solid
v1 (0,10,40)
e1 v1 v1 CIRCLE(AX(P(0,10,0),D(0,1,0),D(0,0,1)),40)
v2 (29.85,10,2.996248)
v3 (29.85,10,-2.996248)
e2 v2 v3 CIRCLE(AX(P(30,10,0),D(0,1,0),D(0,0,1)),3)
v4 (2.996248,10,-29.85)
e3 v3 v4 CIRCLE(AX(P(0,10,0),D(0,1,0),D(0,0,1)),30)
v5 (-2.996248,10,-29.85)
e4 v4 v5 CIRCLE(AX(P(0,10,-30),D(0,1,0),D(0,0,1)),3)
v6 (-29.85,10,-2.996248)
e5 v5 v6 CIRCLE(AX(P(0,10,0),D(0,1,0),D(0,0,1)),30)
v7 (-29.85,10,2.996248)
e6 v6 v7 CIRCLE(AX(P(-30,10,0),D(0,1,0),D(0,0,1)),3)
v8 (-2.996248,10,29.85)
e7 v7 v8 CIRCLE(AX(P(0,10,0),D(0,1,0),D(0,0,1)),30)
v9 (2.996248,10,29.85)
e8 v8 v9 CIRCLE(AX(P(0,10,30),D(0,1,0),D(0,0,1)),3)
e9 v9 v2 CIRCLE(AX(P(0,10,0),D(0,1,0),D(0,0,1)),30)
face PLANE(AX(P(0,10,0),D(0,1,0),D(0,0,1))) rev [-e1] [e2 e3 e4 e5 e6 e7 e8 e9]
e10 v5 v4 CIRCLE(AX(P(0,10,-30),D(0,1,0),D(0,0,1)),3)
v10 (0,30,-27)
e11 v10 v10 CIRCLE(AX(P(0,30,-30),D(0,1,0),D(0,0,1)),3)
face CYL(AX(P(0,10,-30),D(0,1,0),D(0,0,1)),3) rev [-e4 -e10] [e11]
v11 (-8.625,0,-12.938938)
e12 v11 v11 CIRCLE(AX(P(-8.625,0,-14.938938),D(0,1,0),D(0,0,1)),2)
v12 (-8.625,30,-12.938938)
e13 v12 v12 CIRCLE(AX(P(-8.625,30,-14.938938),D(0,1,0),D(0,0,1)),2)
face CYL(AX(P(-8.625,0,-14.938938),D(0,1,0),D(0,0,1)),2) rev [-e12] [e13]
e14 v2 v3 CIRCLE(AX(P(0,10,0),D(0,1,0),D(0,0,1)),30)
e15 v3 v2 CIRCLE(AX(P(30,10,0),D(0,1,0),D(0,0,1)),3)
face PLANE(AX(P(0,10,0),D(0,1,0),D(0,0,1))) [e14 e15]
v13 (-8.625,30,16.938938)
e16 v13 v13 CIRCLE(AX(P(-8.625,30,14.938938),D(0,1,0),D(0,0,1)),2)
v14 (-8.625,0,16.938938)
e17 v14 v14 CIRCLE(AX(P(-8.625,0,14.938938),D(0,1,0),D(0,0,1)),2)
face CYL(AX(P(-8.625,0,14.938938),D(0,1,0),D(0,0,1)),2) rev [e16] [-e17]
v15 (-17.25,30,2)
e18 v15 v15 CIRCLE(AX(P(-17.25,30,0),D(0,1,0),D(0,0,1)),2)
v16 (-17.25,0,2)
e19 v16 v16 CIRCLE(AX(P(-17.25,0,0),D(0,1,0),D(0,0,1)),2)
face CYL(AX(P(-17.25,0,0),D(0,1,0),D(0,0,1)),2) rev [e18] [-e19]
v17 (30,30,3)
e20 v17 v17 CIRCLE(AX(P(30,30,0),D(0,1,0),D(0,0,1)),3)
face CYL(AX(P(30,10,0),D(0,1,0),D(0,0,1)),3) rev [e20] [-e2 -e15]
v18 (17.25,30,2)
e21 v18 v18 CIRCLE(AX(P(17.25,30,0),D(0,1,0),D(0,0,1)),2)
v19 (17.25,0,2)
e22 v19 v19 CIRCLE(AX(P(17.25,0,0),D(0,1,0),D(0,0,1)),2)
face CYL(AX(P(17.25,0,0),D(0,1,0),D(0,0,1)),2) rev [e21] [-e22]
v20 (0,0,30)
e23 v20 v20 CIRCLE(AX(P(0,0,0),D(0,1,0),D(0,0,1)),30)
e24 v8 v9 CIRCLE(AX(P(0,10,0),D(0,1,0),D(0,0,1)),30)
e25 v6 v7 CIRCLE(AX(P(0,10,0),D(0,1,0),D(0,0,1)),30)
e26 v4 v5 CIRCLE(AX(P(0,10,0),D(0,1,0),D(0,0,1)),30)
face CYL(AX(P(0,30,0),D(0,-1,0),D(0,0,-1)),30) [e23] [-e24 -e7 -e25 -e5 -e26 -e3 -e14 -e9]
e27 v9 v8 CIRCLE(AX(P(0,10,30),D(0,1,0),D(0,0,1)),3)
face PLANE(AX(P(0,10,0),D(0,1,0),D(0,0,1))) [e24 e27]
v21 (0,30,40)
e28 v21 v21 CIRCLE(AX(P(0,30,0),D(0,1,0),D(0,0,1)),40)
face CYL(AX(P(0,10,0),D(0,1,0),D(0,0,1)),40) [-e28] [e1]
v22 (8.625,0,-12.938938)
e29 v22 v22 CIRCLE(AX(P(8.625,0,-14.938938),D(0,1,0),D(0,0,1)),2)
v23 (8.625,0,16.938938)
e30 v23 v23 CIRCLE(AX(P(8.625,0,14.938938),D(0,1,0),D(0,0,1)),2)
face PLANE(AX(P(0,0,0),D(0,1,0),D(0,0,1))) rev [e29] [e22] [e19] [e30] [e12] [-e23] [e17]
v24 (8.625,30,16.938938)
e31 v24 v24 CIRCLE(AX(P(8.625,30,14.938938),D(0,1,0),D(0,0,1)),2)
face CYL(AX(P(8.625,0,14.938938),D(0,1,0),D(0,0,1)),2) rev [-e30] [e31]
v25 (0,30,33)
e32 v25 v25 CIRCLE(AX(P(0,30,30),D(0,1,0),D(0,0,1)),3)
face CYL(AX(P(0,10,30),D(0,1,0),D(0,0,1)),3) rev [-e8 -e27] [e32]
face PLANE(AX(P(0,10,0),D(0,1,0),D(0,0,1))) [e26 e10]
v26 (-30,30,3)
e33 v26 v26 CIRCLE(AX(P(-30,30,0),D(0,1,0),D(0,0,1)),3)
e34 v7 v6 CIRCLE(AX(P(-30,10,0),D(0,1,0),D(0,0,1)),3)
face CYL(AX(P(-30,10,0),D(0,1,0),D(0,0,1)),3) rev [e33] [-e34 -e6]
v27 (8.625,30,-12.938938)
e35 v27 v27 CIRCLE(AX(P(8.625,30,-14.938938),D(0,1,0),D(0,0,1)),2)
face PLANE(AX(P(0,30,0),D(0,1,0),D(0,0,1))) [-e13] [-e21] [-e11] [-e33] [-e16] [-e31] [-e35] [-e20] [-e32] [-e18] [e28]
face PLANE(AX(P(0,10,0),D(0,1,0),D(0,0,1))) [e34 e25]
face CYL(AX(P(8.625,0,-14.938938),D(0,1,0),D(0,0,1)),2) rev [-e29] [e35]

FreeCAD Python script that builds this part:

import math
import FreeCAD as App
import Part
import Sketcher
from FreeCAD import Vector
Q = App.Units.Quantity

doc = App.newDocument("Part")
body = doc.addObject("PartDesign::Body", "Body")

sketch1 = body.newObject("Sketcher::SketchObject", "Sketch")
sketch1.AttachmentSupport = (doc.getObject("XZ_Plane"), [""])
sketch1.MapMode = "FlatFace"
sketch1.addGeometry(Part.Circle(Vector(0, 0, 0), Vector(0, 0, 1), 30), False)
sketch1.addGeometry(Part.Circle(Vector(-8.6, -14.9, 0), Vector(0, 0, 1), 3), False)
sketch1.addGeometry(Part.Circle(Vector(-17.2, 0, 0), Vector(0, 0, 1), 3), False)
sketch1.addGeometry(Part.Circle(Vector(-8.6, 14.9, 0), Vector(0, 0, 1), 3), False)
sketch1.addGeometry(Part.Circle(Vector(8.6, -14.9, 0), Vector(0, 0, 1), 3), False)
sketch1.addGeometry(Part.Circle(Vector(17.2, 0, 0), Vector(0, 0, 1), 3), False)
sketch1.addGeometry(Part.Circle(Vector(8.6, 14.9, 0), Vector(0, 0, 1), 3), False)
sketch1.addConstraint(Sketcher.Constraint("Coincident", 0, 3, -1, 1))
sketch1.addConstraint(Sketcher.Constraint("Equal", 1, 2))
sketch1.addConstraint(Sketcher.Constraint("Equal", 2, 3))
sketch1.addConstraint(Sketcher.Constraint("Equal", 3, 4))
sketch1.addConstraint(Sketcher.Constraint("Equal", 4, 5))
sketch1.addConstraint(Sketcher.Constraint("Equal", 5, 6))
sketch1.addConstraint(Sketcher.Constraint("Symmetric", 3, 3, 4, 3, -1, 1))
sketch1.addConstraint(Sketcher.Constraint("Symmetric", 2, 3, 5, 3, -1, 1))
sketch1.addConstraint(Sketcher.Constraint("Symmetric", 1, 3, 6, 3, -1, 1))
sketch1.addConstraint(Sketcher.Constraint("Symmetric", 1, 3, 4, 3, -2))
sketch1.addConstraint(Sketcher.Constraint("PointOnObject", 2, 3, -1))
sketch1.addConstraint(Sketcher.Constraint("Diameter", 0, Q("60 mm")))
sketch1.addConstraint(Sketcher.Constraint("Diameter", 1, Q("6 mm")))
sketch1.addConstraint(Sketcher.Constraint("DistanceX", 2, 3, 5, 3, Q("34.5 mm")))
sketch1.addConstraint(Sketcher.Constraint("DistanceX", 1, 3, 4, 3, Q("17.25 mm")))
sketch1.addConstraint(Sketcher.Constraint("DistanceY", 1, 3, -1, 1, Q("14.938938 mm")))
pad1 = body.newObject("PartDesign::Pad", "Pad")
pad1.Profile = sketch1
pad1.Length = 30
pad1.Reversed = True

sketch2 = body.newObject("Sketcher::SketchObject", "Sketch001")
sketch2.AttachmentSupport = (doc.getObject("XZ_Plane"), [""])
sketch2.MapMode = "FlatFace"
sketch2.AttachmentOffset = App.Placement(Vector(0, 0, -10), App.Rotation())
sketch2.addGeometry(Part.Circle(Vector(0, 0, 0), Vector(0, 0, 1), 40), False)
sketch2.addGeometry(Part.ArcOfCircle(Part.Circle(Vector(0, -30, 0), Vector(0, 0, 1), 3), math.radians(0), math.radians(2.87)), False)
sketch2.addGeometry(Part.ArcOfCircle(Part.Circle(Vector(0, 0, 0), Vector(0, 0, 1), 30), math.radians(-84), math.radians(-6)), False)
sketch2.addGeometry(Part.ArcOfCircle(Part.Circle(Vector(30, 0, 0), Vector(0, 0, 1), 3), math.radians(-93), math.radians(0)), False)
sketch2.addGeometry(Part.ArcOfCircle(Part.Circle(Vector(30, 0, 0), Vector(0, 0, 1), 3), math.radians(0), math.radians(93)), False)
sketch2.addGeometry(Part.ArcOfCircle(Part.Circle(Vector(0, 0, 0), Vector(0, 0, 1), 30), math.radians(6), math.radians(84)), False)
sketch2.addGeometry(Part.ArcOfCircle(Part.Circle(Vector(0, 30, 0), Vector(0, 0, 1), 3), math.radians(-2.87), math.radians(0)), False)
sketch2.addGeometry(Part.ArcOfCircle(Part.Circle(Vector(0, 30, 0), Vector(0, 0, 1), 3), math.radians(0), math.radians(183)), False)
sketch2.addGeometry(Part.ArcOfCircle(Part.Circle(Vector(0, 0, 0), Vector(0, 0, 1), 30), math.radians(96), math.radians(174)), False)
sketch2.addGeometry(Part.ArcOfCircle(Part.Circle(Vector(-30, 0, 0), Vector(0, 0, 1), 3), math.radians(87), math.radians(273)), False)
sketch2.addGeometry(Part.ArcOfCircle(Part.Circle(Vector(0, 0, 0), Vector(0, 0, 1), 30), math.radians(-174), math.radians(-96)), False)
sketch2.addGeometry(Part.ArcOfCircle(Part.Circle(Vector(0, -30, 0), Vector(0, 0, 1), 3), math.radians(177), math.radians(360)), False)
sketch2.addConstraint(Sketcher.Constraint("Coincident", 1, 2, 2, 1))
sketch2.addConstraint(Sketcher.Constraint("Coincident", 2, 2, 3, 1))
sketch2.addConstraint(Sketcher.Constraint("Tangent", 3, 2, 4, 1))
sketch2.addConstraint(Sketcher.Constraint("Coincident", 4, 2, 5, 1))
sketch2.addConstraint(Sketcher.Constraint("Coincident", 5, 2, 6, 1))
sketch2.addConstraint(Sketcher.Constraint("Tangent", 6, 2, 7, 1))
sketch2.addConstraint(Sketcher.Constraint("Coincident", 7, 2, 8, 1))
sketch2.addConstraint(Sketcher.Constraint("Coincident", 8, 2, 9, 1))
sketch2.addConstraint(Sketcher.Constraint("Coincident", 9, 2, 10, 1))
sketch2.addConstraint(Sketcher.Constraint("Coincident", 10, 2, 11, 1))
sketch2.addConstraint(Sketcher.Constraint("Tangent", 11, 2, 1, 1))
sketch2.addConstraint(Sketcher.Constraint("Coincident", 0, 3, -1, 1))
sketch2.addConstraint(Sketcher.Constraint("Coincident", 2, 3, -1, 1))
sketch2.addConstraint(Sketcher.Constraint("Coincident", 5, 3, -1, 1))
sketch2.addConstraint(Sketcher.Constraint("Coincident", 8, 3, -1, 1))
sketch2.addConstraint(Sketcher.Constraint("Coincident", 10, 3, -1, 1))
sketch2.addConstraint(Sketcher.Constraint("Equal", 1, 3))
sketch2.addConstraint(Sketcher.Constraint("Equal", 3, 4))
sketch2.addConstraint(Sketcher.Constraint("Equal", 2, 5))
sketch2.addConstraint(Sketcher.Constraint("Equal", 4, 6))
sketch2.addConstraint(Sketcher.Constraint("Equal", 6, 7))
sketch2.addConstraint(Sketcher.Constraint("Equal", 5, 8))
sketch2.addConstraint(Sketcher.Constraint("Equal", 7, 9))
sketch2.addConstraint(Sketcher.Constraint("Equal", 8, 10))
sketch2.addConstraint(Sketcher.Constraint("Equal", 9, 11))
sketch2.addConstraint(Sketcher.Constraint("Symmetric", 1, 3, 6, 3, -1, 1))
sketch2.addConstraint(Sketcher.Constraint("Symmetric", 3, 3, 9, 3, -1, 1))
sketch2.addConstraint(Sketcher.Constraint("Symmetric", 6, 2, 11, 2, -1))
sketch2.addConstraint(Sketcher.Constraint("PointOnObject", 3, 3, -1))
sketch2.addConstraint(Sketcher.Constraint("PointOnObject", 3, 2, -1))
sketch2.addConstraint(Sketcher.Constraint("Horizontal", 7, 3, 6, 2))
sketch2.addConstraint(Sketcher.Constraint("Diameter", 0, Q("80 mm")))
sketch2.addConstraint(Sketcher.Constraint("Radius", 1, Q("2.999998 mm")))
sketch2.addConstraint(Sketcher.Constraint("Radius", 2, Q("30 mm")))
sketch2.addConstraint(Sketcher.Constraint("DistanceY", 1, 3, -1, 1, Q("30 mm")))
sketch2.addConstraint(Sketcher.Constraint("DistanceX", -1, 1, 3, 3, Q("30 mm")))
pad2 = body.newObject("PartDesign::Pad", "Pad001")
pad2.Profile = sketch2
pad2.Length = 20
pad2.Reversed = True

sketch3 = body.newObject("Sketcher::SketchObject", "Sketch002")
sketch3.AttachmentSupport = (doc.getObject("XZ_Plane"), [""])
sketch3.MapMode = "FlatFace"
sketch3.AttachmentOffset = App.Placement(Vector(0, 0, -10), App.Rotation())
sketch3.addGeometry(Part.ArcOfCircle(Part.Circle(Vector(0, 0, 0), Vector(0, 0, 1), 30), math.radians(0), math.radians(5.73)), False)
sketch3.addGeometry(Part.ArcOfCircle(Part.Circle(Vector(0, 0, 0), Vector(0, 0, 1), 30), math.radians(-5.73), math.radians(0)), False)
sketch3.addGeometry(Part.ArcOfCircle(Part.Circle(Vector(30, 0, 0), Vector(0, 0, 1), 3), math.radians(93), math.radians(267)), False)
sketch3.addGeometry(Part.ArcOfCircle(Part.Circle(Vector(0, 0, 0), Vector(0, 0, 1), 30), math.radians(-5.73), math.radians(0)), False)
sketch3.addGeometry(Part.ArcOfCircle(Part.Circle(Vector(0, 0, 0), Vector(0, 0, 1), 30), math.radians(0), math.radians(5.73)), False)
sketch3.addGeometry(Part.ArcOfCircle(Part.Circle(Vector(30, 0, 0), Vector(0, 0, 1), 3), math.radians(0), math.radians(93)), False)
sketch3.addGeometry(Part.ArcOfCircle(Part.Circle(Vector(30, 0, 0), Vector(0, 0, 1), 3), math.radians(-93), math.radians(0)), False)
sketch3.addGeometry(Part.ArcOfCircle(Part.Circle(Vector(0, -30, 0), Vector(0, 0, 1), 3), math.radians(3), math.radians(177)), False)
sketch3.addGeometry(Part.ArcOfCircle(Part.Circle(Vector(0, 0, 0), Vector(0, 0, 1), 30), math.radians(-95.73), math.radians(-84.27)), False)
sketch3.addGeometry(Part.ArcOfCircle(Part.Circle(Vector(0, 0, 0), Vector(0, 0, 1), 30), math.radians(-95.73), math.radians(-84.27)), False)
sketch3.addGeometry(Part.ArcOfCircle(Part.Circle(Vector(0, -30, 0), Vector(0, 0, 1), 3), math.radians(0), math.radians(2.87)), False)
sketch3.addGeometry(Part.ArcOfCircle(Part.Circle(Vector(0, -30, 0), Vector(0, 0, 1), 3), math.radians(177), math.radians(360)), False)
sketch3.addGeometry(Part.ArcOfCircle(Part.Circle(Vector(0, 30, 0), Vector(0, 0, 1), 3), math.radians(-2.87), math.radians(0)), False)
sketch3.addGeometry(Part.ArcOfCircle(Part.Circle(Vector(0, 0, 0), Vector(0, 0, 1), 30), math.radians(84.27), math.radians(95.73)), False)
sketch3.addGeometry(Part.ArcOfCircle(Part.Circle(Vector(0, 30, 0), Vector(0, 0, 1), 3), math.radians(0), math.radians(183)), False)
sketch3.addGeometry(Part.ArcOfCircle(Part.Circle(Vector(0, 0, 0), Vector(0, 0, 1), 30), math.radians(84.27), math.radians(95.73)), False)
sketch3.addGeometry(Part.ArcOfCircle(Part.Circle(Vector(0, 30, 0), Vector(0, 0, 1), 3), math.radians(-177), math.radians(-3)), False)
sketch3.addGeometry(Part.ArcOfCircle(Part.Circle(Vector(-30, 0, 0), Vector(0, 0, 1), 3), math.radians(-87), math.radians(0)), False)
sketch3.addGeometry(Part.ArcOfCircle(Part.Circle(Vector(0, 0, 0), Vector(0, 0, 1), 30), math.radians(174.27), math.radians(185.73)), False)
sketch3.addGeometry(Part.ArcOfCircle(Part.Circle(Vector(-30, 0, 0), Vector(0, 0, 1), 3), math.radians(0), math.radians(87)), False)
sketch3.addGeometry(Part.ArcOfCircle(Part.Circle(Vector(0, 0, 0), Vector(0, 0, 1), 30), math.radians(174.27), math.radians(185.73)), False)
sketch3.addGeometry(Part.ArcOfCircle(Part.Circle(Vector(-30, 0, 0), Vector(0, 0, 1), 3), math.radians(87), math.radians(273)), False)
sketch3.addConstraint(Sketcher.Constraint("Tangent", 0, 1, 1, 2))
sketch3.addConstraint(Sketcher.Constraint("Coincident", 1, 1, 2, 2))
sketch3.addConstraint(Sketcher.Constraint("Coincident", 2, 1, 0, 2))
sketch3.addConstraint(Sketcher.Constraint("Tangent", 3, 2, 4, 1))
sketch3.addConstraint(Sketcher.Constraint("Coincident", 4, 2, 5, 2))
sketch3.addConstraint(Sketcher.Constraint("Tangent", 5, 1, 6, 2))
sketch3.addConstraint(Sketcher.Constraint("Coincident", 6, 1, 3, 1))
sketch3.addConstraint(Sketcher.Constraint("Coincident", 7, 1, 8, 2))
sketch3.addConstraint(Sketcher.Constraint("Coincident", 8, 1, 7, 2))
sketch3.addConstraint(Sketcher.Constraint("Coincident", 9, 2, 10, 2))
sketch3.addConstraint(Sketcher.Constraint("Tangent", 10, 1, 11, 2))
sketch3.addConstraint(Sketcher.Constraint("Coincident", 11, 1, 9, 1))
sketch3.addConstraint(Sketcher.Constraint("Coincident", 12, 1, 13, 1))
sketch3.addConstraint(Sketcher.Constraint("Coincident", 13, 2, 14, 2))
sketch3.addConstraint(Sketcher.Constraint("Tangent", 14, 1, 12, 2))
sketch3.addConstraint(Sketcher.Constraint("Coincident", 15, 1, 16, 2))
sketch3.addConstraint(Sketcher.Constraint("Coincident", 16, 1, 15, 2))
sketch3.addConstraint(Sketcher.Constraint("Coincident", 17, 1, 18, 2))
sketch3.addConstraint(Sketcher.Constraint("Coincident", 18, 1, 19, 2))
sketch3.addConstraint(Sketcher.Constraint("Tangent", 19, 1, 17, 2))
sketch3.addConstraint(Sketcher.Constraint("Coincident", 20, 1, 21, 1))
sketch3.addConstraint(Sketcher.Constraint("Coincident", 21, 2, 20, 2))
sketch3.addConstraint(Sketcher.Constraint("Coincident", 0, 3, -1, 1))
sketch3.addConstraint(Sketcher.Constraint("Coincident", 3, 3, -1, 1))
sketch3.addConstraint(Sketcher.Constraint("Coincident", 8, 3, -1, 1))
sketch3.addConstraint(Sketcher.Constraint("Coincident", 9, 3, -1, 1))
sketch3.addConstraint(Sketcher.Constraint("Coincident", 13, 3, -1, 1))
sketch3.addConstraint(Sketcher.Constraint("Coincident", 15, 3, -1, 1))
sketch3.addConstraint(Sketcher.Constraint("Coincident", 18, 3, -1, 1))
sketch3.addConstraint(Sketcher.Constraint("Coincident", 20, 3, -1, 1))
sketch3.addConstraint(Sketcher.Constraint("Coincident", 5, 3, 2, 3))
sketch3.addConstraint(Sketcher.Constraint("Coincident", 10, 3, 7, 3))
sketch3.addConstraint(Sketcher.Constraint("Coincident", 16, 3, 12, 3))
sketch3.addConstraint(Sketcher.Constraint("Coincident", 21, 3, 17, 3))
sketch3.addConstraint(Sketcher.Constraint("Coincident", 0, 1, 2, 3))
sketch3.addConstraint(Sketcher.Constraint("Coincident", 3, 2, 2, 3))
sketch3.addConstraint(Sketcher.Constraint("Coincident", 9, 2, 7, 1))
sketch3.addConstraint(Sketcher.Constraint("Coincident", 15, 1, 12, 1))
sketch3.addConstraint(Sketcher.Constraint("Coincident", 20, 1, 18, 1))
sketch3.addConstraint(Sketcher.Constraint("Equal", 0, 1))
sketch3.addConstraint(Sketcher.Constraint("Equal", 3, 4))
sketch3.addConstraint(Sketcher.Constraint("Equal", 2, 5))
sketch3.addConstraint(Sketcher.Constraint("Equal", 5, 6))
sketch3.addConstraint(Sketcher.Constraint("Equal", 6, 7))
sketch3.addConstraint(Sketcher.Constraint("Equal", 4, 8))
sketch3.addConstraint(Sketcher.Constraint("Equal", 10, 11))
sketch3.addConstraint(Sketcher.Constraint("Equal", 11, 12))
sketch3.addConstraint(Sketcher.Constraint("Equal", 9, 13))
sketch3.addConstraint(Sketcher.Constraint("Equal", 12, 14))
sketch3.addConstraint(Sketcher.Constraint("Equal", 16, 17))
sketch3.addConstraint(Sketcher.Constraint("Equal", 15, 18))
sketch3.addConstraint(Sketcher.Constraint("Equal", 17, 19))
sketch3.addConstraint(Sketcher.Constraint("Symmetric", 7, 3, 12, 3, -1, 1))
sketch3.addConstraint(Sketcher.Constraint("Symmetric", 2, 3, 17, 3, -1, 1))
sketch3.addConstraint(Sketcher.Constraint("Symmetric", 10, 1, 14, 1, -1))
sketch3.addConstraint(Sketcher.Constraint("PointOnObject", 2, 3, -1))
sketch3.addConstraint(Sketcher.Constraint("PointOnObject", 5, 1, -1))
sketch3.addConstraint(Sketcher.Constraint("PointOnObject", 19, 1, -1))
sketch3.addConstraint(Sketcher.Constraint("Horizontal", 11, 3, 10, 1))
sketch3.addConstraint(Sketcher.Constraint("Radius", 0, Q("30 mm")))
sketch3.addConstraint(Sketcher.Constraint("Radius", 2, Q("3 mm")))
sketch3.addConstraint(Sketcher.Constraint("DistanceY", 7, 3, -1, 1, Q("30 mm")))
pocket1 = body.newObject("PartDesign::Pocket", "Pocket")
pocket1.Profile = sketch3
pocket1.Length = 20

sketch4 = body.newObject("Sketcher::SketchObject", "Sketch003")
sketch4.AttachmentSupport = (doc.getObject("XZ_Plane"), [""])
sketch4.MapMode = "FlatFace"
sketch4.addGeometry(Part.Circle(Vector(17.2, 0, 0), Vector(0, 0, 1), 3), False)
sketch4.addGeometry(Part.Circle(Vector(17.2, 0, 0), Vector(0, 0, 1), 2), False)
sketch4.addGeometry(Part.Circle(Vector(8.6, -14.9, 0), Vector(0, 0, 1), 3), False)
sketch4.addGeometry(Part.Circle(Vector(8.6, -14.9, 0), Vector(0, 0, 1), 2), False)
sketch4.addGeometry(Part.Circle(Vector(8.6, 14.9, 0), Vector(0, 0, 1), 3), False)
sketch4.addGeometry(Part.Circle(Vector(8.6, 14.9, 0), Vector(0, 0, 1), 2), False)
sketch4.addGeometry(Part.Circle(Vector(-8.6, -14.9, 0), Vector(0, 0, 1), 3), False)
sketch4.addGeometry(Part.Circle(Vector(-8.6, -14.9, 0), Vector(0, 0, 1), 2), False)
sketch4.addGeometry(Part.Circle(Vector(-8.6, 14.9, 0), Vector(0, 0, 1), 3), False)
sketch4.addGeometry(Part.Circle(Vector(-8.6, 14.9, 0), Vector(0, 0, 1), 2), False)
sketch4.addGeometry(Part.Circle(Vector(-17.2, 0, 0), Vector(0, 0, 1), 3), False)
sketch4.addGeometry(Part.Circle(Vector(-17.2, 0, 0), Vector(0, 0, 1), 2), False)
sketch4.addConstraint(Sketcher.Constraint("Coincident", 1, 3, 0, 3))
sketch4.addConstraint(Sketcher.Constraint("Coincident", 3, 3, 2, 3))
sketch4.addConstraint(Sketcher.Constraint("Coincident", 5, 3, 4, 3))
sketch4.addConstraint(Sketcher.Constraint("Coincident", 7, 3, 6, 3))
sketch4.addConstraint(Sketcher.Constraint("Coincident", 9, 3, 8, 3))
sketch4.addConstraint(Sketcher.Constraint("Coincident", 11, 3, 10, 3))
sketch4.addConstraint(Sketcher.Constraint("Equal", 0, 2))
sketch4.addConstraint(Sketcher.Constraint("Equal", 1, 3))
sketch4.addConstraint(Sketcher.Constraint("Equal", 2, 4))
sketch4.addConstraint(Sketcher.Constraint("Equal", 3, 5))
sketch4.addConstraint(Sketcher.Constraint("Equal", 4, 6))
sketch4.addConstraint(Sketcher.Constraint("Equal", 5, 7))
sketch4.addConstraint(Sketcher.Constraint("Equal", 6, 8))
sketch4.addConstraint(Sketcher.Constraint("Equal", 7, 9))
sketch4.addConstraint(Sketcher.Constraint("Equal", 8, 10))
sketch4.addConstraint(Sketcher.Constraint("Equal", 9, 11))
sketch4.addConstraint(Sketcher.Constraint("Symmetric", 4, 3, 6, 3, -1, 1))
sketch4.addConstraint(Sketcher.Constraint("Symmetric", 2, 3, 8, 3, -1, 1))
sketch4.addConstraint(Sketcher.Constraint("Symmetric", 0, 3, 10, 3, -1, 1))
sketch4.addConstraint(Sketcher.Constraint("Symmetric", 2, 3, 6, 3, -2))
sketch4.addConstraint(Sketcher.Constraint("PointOnObject", 0, 3, -1))
sketch4.addConstraint(Sketcher.Constraint("Diameter", 0, Q("6 mm")))
sketch4.addConstraint(Sketcher.Constraint("Diameter", 1, Q("4 mm")))
sketch4.addConstraint(Sketcher.Constraint("DistanceX", -1, 1, 0, 3, Q("17.25 mm")))
sketch4.addConstraint(Sketcher.Constraint("DistanceX", 6, 3, 2, 3, Q("17.25 mm")))
sketch4.addConstraint(Sketcher.Constraint("DistanceY", 2, 3, -1, 1, Q("14.938938 mm")))
pad3 = body.newObject("PartDesign::Pad", "Pad002")
pad3.Profile = sketch4
pad3.Length = 30
pad3.Reversed = True

doc.recompute()
